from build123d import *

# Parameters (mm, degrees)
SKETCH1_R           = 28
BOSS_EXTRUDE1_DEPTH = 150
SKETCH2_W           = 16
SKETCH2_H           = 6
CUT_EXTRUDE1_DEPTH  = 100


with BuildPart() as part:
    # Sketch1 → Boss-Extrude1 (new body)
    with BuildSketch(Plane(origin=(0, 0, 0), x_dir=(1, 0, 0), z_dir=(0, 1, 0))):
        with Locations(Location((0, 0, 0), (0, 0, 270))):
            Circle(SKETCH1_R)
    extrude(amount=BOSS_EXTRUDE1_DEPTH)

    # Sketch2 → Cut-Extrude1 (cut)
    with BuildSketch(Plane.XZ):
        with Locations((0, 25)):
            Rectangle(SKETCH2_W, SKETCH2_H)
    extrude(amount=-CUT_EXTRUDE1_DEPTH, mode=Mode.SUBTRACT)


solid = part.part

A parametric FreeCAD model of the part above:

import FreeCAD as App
import Part
import Sketcher
Q = App.Units.Quantity

doc = App.newDocument("Part")
params = doc.addObject("Spreadsheet::Sheet", "Params")
for row, (alias, value) in enumerate([
    ("sketch1_diameter", "56 mm"),
    ("pad1_length", "150 mm"),
    ("sketch2_width", "16 mm"),
    ("sketch2_height", "6 mm"),
    ("pocket1_length", "100 mm"),
], start=1):
    params.set(f"A{row}", alias)
    params.set(f"B{row}", "=" + value)
    params.setAlias(f"B{row}", alias)

body = doc.addObject("PartDesign::Body", "Body")

sketch1 = body.newObject("Sketcher::SketchObject", "Sketch")
sketch1.AttachmentSupport = (doc.getObject("XZ_Plane"), [""])
sketch1.MapMode = "FlatFace"
sketch1.addGeometry(Part.Circle(App.Vector(0, 0, 0), App.Vector(0, 0, 1), 28), False)
sketch1.addConstraint([
    Sketcher.Constraint("Coincident", 0, 3, -1, 1),
    Sketcher.Constraint("Diameter", 0, Q("56 mm")),
])
sketch1.setExpression("Constraints[1]", "Params.sketch1_diameter")
pad1 = body.newObject("PartDesign::Pad", "Pad")
pad1.Profile = sketch1
pad1.setExpression("Length", "Params.pad1_length")
pad1.Reversed = True

sketch2 = body.newObject("Sketcher::SketchObject", "Sketch001")
sketch2.AttachmentSupport = (doc.getObject("XZ_Plane"), [""])
sketch2.MapMode = "FlatFace"
sketch2.addGeometry([
    Part.LineSegment(App.Vector(-8, 28, 0), App.Vector(-8, 22, 0)),
    Part.LineSegment(App.Vector(-8, 22, 0), App.Vector(8, 22, 0)),
    Part.LineSegment(App.Vector(8, 22, 0), App.Vector(8, 28, 0)),
    Part.LineSegment(App.Vector(8, 28, 0), App.Vector(-8, 28, 0)),
], False)
sketch2.addConstraint([
    Sketcher.Constraint("Coincident", 0, 2, 1, 1),
    Sketcher.Constraint("Coincident", 1, 2, 2, 1),
    Sketcher.Constraint("Coincident", 2, 2, 3, 1),
    Sketcher.Constraint("Coincident", 3, 2, 0, 1),
    Sketcher.Constraint("Vertical", 0),
    Sketcher.Constraint("Horizontal", 1),
    Sketcher.Constraint("Vertical", 2),
    Sketcher.Constraint("Horizontal", 3),
    Sketcher.Constraint("DistanceX", 1, 1, 1, 2, Q("16 mm")),
    Sketcher.Constraint("DistanceY", 0, 2, 0, 1, Q("6 mm")),
    Sketcher.Constraint("DistanceX", 0, 2, -1, 1, Q("8 mm")),
    Sketcher.Constraint("DistanceY", -1, 1, 0, 2, Q("22 mm")),
])
sketch2.setExpression("Constraints[8]", "Params.sketch2_width")
sketch2.setExpression("Constraints[9]", "Params.sketch2_height")
pocket1 = body.newObject("PartDesign::Pocket", "Pocket")
pocket1.Profile = sketch2
pocket1.setExpression("Length", "Params.pocket1_length")

doc.recompute()
